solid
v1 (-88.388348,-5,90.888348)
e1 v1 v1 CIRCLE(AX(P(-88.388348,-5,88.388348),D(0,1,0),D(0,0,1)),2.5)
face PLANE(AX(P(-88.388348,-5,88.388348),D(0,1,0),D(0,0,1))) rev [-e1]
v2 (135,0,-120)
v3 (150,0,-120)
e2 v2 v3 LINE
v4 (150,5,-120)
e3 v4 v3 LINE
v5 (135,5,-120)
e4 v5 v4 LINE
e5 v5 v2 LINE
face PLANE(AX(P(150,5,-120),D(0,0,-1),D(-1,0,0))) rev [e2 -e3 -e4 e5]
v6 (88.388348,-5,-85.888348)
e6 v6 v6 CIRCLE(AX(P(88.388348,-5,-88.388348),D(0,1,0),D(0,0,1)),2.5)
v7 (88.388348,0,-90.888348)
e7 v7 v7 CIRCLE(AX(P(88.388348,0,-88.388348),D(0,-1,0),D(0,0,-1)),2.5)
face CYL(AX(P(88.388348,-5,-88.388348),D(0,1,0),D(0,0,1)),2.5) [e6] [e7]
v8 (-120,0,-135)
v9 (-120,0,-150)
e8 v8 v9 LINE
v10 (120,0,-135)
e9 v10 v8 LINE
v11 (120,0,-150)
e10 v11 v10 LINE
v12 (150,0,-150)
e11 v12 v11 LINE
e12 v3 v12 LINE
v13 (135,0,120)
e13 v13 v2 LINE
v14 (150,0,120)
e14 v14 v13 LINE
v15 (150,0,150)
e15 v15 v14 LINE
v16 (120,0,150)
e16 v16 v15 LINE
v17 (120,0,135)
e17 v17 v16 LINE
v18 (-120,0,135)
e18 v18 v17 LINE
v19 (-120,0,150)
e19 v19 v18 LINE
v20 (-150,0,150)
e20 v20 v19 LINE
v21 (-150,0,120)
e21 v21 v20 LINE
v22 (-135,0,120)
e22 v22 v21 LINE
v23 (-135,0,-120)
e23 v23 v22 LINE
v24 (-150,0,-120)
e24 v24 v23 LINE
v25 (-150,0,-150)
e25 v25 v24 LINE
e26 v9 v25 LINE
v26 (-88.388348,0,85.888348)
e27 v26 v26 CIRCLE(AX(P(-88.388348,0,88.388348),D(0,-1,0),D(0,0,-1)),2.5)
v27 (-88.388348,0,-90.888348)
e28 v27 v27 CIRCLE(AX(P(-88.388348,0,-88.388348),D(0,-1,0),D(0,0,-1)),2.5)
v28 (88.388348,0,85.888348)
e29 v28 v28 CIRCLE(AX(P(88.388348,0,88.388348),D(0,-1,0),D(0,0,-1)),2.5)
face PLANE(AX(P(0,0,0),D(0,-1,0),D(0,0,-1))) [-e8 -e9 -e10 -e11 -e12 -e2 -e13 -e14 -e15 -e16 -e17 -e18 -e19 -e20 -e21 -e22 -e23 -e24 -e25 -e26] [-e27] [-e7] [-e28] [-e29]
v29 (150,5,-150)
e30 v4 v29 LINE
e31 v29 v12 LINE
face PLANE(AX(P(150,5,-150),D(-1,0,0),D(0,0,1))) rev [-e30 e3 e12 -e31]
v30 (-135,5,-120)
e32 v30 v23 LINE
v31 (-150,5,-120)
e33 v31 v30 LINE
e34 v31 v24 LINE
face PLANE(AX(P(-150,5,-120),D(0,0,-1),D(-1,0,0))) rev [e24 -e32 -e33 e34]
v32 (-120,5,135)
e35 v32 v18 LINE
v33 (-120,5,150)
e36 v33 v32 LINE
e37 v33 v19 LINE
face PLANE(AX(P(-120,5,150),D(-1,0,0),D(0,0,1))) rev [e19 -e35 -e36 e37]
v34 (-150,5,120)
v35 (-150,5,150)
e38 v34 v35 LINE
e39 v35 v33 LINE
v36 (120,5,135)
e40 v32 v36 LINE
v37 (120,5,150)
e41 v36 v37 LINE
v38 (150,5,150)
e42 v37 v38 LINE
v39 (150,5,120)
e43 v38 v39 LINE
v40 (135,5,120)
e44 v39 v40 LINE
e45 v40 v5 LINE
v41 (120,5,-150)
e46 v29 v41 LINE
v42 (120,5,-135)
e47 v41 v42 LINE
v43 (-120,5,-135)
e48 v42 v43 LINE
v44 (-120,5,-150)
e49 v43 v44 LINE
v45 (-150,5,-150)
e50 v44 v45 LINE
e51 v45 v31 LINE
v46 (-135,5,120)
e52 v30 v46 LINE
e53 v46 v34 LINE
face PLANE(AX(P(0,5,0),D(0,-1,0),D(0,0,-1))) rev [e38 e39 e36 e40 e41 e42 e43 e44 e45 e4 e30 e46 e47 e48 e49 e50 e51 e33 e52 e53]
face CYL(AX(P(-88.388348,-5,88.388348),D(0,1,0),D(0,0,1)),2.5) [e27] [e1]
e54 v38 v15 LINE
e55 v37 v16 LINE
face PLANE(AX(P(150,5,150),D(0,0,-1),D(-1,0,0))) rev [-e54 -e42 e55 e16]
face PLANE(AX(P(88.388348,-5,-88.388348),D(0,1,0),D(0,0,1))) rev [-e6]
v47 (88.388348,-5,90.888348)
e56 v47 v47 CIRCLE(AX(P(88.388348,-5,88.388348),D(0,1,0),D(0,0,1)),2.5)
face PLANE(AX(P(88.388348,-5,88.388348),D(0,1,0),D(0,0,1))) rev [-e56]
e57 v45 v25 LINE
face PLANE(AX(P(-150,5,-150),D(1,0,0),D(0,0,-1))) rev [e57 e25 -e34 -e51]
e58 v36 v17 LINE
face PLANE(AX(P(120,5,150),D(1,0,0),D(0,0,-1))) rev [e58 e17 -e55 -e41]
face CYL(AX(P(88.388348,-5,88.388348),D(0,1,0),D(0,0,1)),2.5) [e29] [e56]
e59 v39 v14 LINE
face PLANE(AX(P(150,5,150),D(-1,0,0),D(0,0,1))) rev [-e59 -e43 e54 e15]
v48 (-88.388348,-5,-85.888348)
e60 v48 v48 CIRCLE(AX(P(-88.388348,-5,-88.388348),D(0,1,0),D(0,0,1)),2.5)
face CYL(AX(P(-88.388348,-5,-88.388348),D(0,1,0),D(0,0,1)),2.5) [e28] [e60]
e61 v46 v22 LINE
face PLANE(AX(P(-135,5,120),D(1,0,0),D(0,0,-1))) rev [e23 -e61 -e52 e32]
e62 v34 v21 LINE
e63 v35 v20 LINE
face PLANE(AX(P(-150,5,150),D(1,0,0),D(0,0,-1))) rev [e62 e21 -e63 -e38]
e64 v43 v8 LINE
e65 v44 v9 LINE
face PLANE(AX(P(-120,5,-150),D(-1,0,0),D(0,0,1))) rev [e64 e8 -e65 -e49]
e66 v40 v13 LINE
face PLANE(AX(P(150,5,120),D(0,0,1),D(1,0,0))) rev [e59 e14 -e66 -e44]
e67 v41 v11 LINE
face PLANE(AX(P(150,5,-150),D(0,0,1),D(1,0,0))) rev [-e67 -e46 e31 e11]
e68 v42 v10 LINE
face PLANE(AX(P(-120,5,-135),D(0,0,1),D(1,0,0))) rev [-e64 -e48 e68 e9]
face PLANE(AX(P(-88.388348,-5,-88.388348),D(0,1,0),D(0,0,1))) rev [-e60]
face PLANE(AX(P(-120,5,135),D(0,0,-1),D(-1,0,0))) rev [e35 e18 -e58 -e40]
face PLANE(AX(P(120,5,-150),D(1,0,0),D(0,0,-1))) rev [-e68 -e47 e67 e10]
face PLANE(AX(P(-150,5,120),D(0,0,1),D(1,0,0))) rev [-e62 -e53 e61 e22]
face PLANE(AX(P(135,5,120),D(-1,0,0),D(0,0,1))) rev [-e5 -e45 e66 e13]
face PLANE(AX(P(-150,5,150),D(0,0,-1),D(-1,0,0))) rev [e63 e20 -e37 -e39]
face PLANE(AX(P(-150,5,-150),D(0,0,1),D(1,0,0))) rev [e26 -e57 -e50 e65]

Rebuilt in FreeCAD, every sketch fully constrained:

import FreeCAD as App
import Part
import Sketcher

V = App.Vector


def add_polygon(sketch, points):
    """Adds a closed chain of lines whose ends are joined by coincident constraints."""
    first, n = sketch.GeometryCount, len(points)
    for a, b in zip(points, points[1:] + points[:1]):
        sketch.addGeometry(Part.LineSegment(App.Vector(*a, 0), App.Vector(*b, 0)), False)
    for i in range(n):
        sketch.addConstraint(Sketcher.Constraint("Coincident", first + i, 2, first + (i + 1) % n, 1))

doc = App.newDocument("Part")
params = doc.addObject("Spreadsheet::Sheet", "Params")
for row, (alias, value) in enumerate([
    ("sketch1_width", "240 mm"),
    ("sketch1_width2", "30 mm"),
    ("sketch1_width3", "15 mm"),
    ("pad1_length", "5 mm"),
    ("sketch2_diameter", "5 mm"),
    ("pad2_length", "5 mm"),
], start=1):
    params.set(f"A{row}", alias)
    params.set(f"B{row}", "=" + value)
    params.setAlias(f"B{row}", alias)

body = doc.addObject("PartDesign::Body", "Body")

sketch1 = doc.addObject("Sketcher::SketchObject", "Sketch")
body.addObject(sketch1)
sketch1.AttachmentSupport = (doc.XZ_Plane, [""])
sketch1.MapMode = "FlatFace"
add_polygon(sketch1, [(-120, 150), (-120, 135), (120, 135), (120, 150), (150, 150), (150, 120), (135, 120), (135, -120), (150, -120), (150, -150), (120, -150), (120, -135), (-120, -135), (-120, -150), (-150, -150), (-150, -120), (-135, -120), (-135, 120), (-150, 120), (-150, 150)])
sketch1.addConstraint([
    Sketcher.Constraint("Vertical", 0),
    Sketcher.Constraint("Horizontal", 1),
    Sketcher.Constraint("Vertical", 2),
    Sketcher.Constraint("Horizontal", 3),
    Sketcher.Constraint("Vertical", 4),
    Sketcher.Constraint("Horizontal", 5),
    Sketcher.Constraint("Vertical", 6),
    Sketcher.Constraint("Horizontal", 7),
    Sketcher.Constraint("Vertical", 8),
    Sketcher.Constraint("Horizontal", 9),
    Sketcher.Constraint("Vertical", 10),
    Sketcher.Constraint("Horizontal", 11),
    Sketcher.Constraint("Vertical", 12),
    Sketcher.Constraint("Horizontal", 13),
    Sketcher.Constraint("Vertical", 14),
    Sketcher.Constraint("Horizontal", 15),
    Sketcher.Constraint("Vertical", 16),
    Sketcher.Constraint("Horizontal", 17),
    Sketcher.Constraint("Vertical", 18),
    Sketcher.Constraint("Horizontal", 19),
    Sketcher.Constraint("Symmetric", 0, 2, 10, 2, -1, 1),
    Sketcher.Constraint("Symmetric", 2, 2, 12, 2, -1, 1),
    Sketcher.Constraint("Symmetric", 4, 2, 14, 2, -1, 1),
    Sketcher.Constraint("Symmetric", 6, 2, 16, 2, -1, 1),
    Sketcher.Constraint("Symmetric", 8, 2, 18, 2, -1, 1),
    Sketcher.Constraint("Symmetric", 9, 2, 12, 2, -2),
    Sketcher.Constraint("Symmetric", 7, 2, 14, 2, -2),
    Sketcher.Constraint("Equal", 17, 0),
    Sketcher.Constraint("Equal", 19, 4),
    Sketcher.Constraint("Equal", 11, 6),
    Sketcher.Constraint("DistanceX", 1, 1, 1, 2, 240.0),
    Sketcher.Constraint("DistanceX", 3, 1, 3, 2, 30.0),
    Sketcher.Constraint("DistanceX", 5, 2, 5, 1, 15.0),
])
sketch1.setExpression("Constraints[50]", "Params.sketch1_width")
sketch1.setExpression("Constraints[51]", "Params.sketch1_width2")
sketch1.setExpression("Constraints[52]", "Params.sketch1_width3")
pad1 = doc.addObject("PartDesign::Pad", "Pad")
body.addObject(pad1)
pad1.Profile = sketch1
pad1.setExpression("Length", "Params.pad1_length")
pad1.Reversed = True

sketch2 = doc.addObject("Sketcher::SketchObject", "Sketch001")
body.addObject(sketch2)
sketch2.AttachmentSupport = (doc.XZ_Plane, [""])
sketch2.MapMode = "FlatFace"
sketch2.addGeometry([
    Part.Circle(V(-88.4, -88.4, 0), V(0, 0, 1), 2.5),
    Part.Circle(V(88.4, -88.4, 0), V(0, 0, 1), 2.5),
    Part.Circle(V(-88.4, 88.4, 0), V(0, 0, 1), 2.5),
    Part.Circle(V(88.4, 88.4, 0), V(0, 0, 1), 2.5),
], False)
sketch2.addConstraint([
    Sketcher.Constraint("Equal", 0, 1),
    Sketcher.Constraint("Equal", 1, 2),
    Sketcher.Constraint("Equal", 2, 3),
    Sketcher.Constraint("Symmetric", 1, 3, 2, 3, -1, 1),
    Sketcher.Constraint("Symmetric", 0, 3, 3, 3, -1, 1),
    Sketcher.Constraint("Symmetric", 0, 3, 1, 3, -2),
    Sketcher.Constraint("Diameter", 0, 5.0),
    Sketcher.Constraint("DistanceX", 0, 3, -1, 1, 88.388348),
    Sketcher.Constraint("DistanceY", 0, 3, -1, 1, 88.388348),
])
sketch2.setExpression("Constraints[6]", "Params.sketch2_diameter")
pad2 = doc.addObject("PartDesign::Pad", "Pad001")
body.addObject(pad2)
pad2.Profile = sketch2
pad2.setExpression("Length", "Params.pad2_length")

doc.recompute()
